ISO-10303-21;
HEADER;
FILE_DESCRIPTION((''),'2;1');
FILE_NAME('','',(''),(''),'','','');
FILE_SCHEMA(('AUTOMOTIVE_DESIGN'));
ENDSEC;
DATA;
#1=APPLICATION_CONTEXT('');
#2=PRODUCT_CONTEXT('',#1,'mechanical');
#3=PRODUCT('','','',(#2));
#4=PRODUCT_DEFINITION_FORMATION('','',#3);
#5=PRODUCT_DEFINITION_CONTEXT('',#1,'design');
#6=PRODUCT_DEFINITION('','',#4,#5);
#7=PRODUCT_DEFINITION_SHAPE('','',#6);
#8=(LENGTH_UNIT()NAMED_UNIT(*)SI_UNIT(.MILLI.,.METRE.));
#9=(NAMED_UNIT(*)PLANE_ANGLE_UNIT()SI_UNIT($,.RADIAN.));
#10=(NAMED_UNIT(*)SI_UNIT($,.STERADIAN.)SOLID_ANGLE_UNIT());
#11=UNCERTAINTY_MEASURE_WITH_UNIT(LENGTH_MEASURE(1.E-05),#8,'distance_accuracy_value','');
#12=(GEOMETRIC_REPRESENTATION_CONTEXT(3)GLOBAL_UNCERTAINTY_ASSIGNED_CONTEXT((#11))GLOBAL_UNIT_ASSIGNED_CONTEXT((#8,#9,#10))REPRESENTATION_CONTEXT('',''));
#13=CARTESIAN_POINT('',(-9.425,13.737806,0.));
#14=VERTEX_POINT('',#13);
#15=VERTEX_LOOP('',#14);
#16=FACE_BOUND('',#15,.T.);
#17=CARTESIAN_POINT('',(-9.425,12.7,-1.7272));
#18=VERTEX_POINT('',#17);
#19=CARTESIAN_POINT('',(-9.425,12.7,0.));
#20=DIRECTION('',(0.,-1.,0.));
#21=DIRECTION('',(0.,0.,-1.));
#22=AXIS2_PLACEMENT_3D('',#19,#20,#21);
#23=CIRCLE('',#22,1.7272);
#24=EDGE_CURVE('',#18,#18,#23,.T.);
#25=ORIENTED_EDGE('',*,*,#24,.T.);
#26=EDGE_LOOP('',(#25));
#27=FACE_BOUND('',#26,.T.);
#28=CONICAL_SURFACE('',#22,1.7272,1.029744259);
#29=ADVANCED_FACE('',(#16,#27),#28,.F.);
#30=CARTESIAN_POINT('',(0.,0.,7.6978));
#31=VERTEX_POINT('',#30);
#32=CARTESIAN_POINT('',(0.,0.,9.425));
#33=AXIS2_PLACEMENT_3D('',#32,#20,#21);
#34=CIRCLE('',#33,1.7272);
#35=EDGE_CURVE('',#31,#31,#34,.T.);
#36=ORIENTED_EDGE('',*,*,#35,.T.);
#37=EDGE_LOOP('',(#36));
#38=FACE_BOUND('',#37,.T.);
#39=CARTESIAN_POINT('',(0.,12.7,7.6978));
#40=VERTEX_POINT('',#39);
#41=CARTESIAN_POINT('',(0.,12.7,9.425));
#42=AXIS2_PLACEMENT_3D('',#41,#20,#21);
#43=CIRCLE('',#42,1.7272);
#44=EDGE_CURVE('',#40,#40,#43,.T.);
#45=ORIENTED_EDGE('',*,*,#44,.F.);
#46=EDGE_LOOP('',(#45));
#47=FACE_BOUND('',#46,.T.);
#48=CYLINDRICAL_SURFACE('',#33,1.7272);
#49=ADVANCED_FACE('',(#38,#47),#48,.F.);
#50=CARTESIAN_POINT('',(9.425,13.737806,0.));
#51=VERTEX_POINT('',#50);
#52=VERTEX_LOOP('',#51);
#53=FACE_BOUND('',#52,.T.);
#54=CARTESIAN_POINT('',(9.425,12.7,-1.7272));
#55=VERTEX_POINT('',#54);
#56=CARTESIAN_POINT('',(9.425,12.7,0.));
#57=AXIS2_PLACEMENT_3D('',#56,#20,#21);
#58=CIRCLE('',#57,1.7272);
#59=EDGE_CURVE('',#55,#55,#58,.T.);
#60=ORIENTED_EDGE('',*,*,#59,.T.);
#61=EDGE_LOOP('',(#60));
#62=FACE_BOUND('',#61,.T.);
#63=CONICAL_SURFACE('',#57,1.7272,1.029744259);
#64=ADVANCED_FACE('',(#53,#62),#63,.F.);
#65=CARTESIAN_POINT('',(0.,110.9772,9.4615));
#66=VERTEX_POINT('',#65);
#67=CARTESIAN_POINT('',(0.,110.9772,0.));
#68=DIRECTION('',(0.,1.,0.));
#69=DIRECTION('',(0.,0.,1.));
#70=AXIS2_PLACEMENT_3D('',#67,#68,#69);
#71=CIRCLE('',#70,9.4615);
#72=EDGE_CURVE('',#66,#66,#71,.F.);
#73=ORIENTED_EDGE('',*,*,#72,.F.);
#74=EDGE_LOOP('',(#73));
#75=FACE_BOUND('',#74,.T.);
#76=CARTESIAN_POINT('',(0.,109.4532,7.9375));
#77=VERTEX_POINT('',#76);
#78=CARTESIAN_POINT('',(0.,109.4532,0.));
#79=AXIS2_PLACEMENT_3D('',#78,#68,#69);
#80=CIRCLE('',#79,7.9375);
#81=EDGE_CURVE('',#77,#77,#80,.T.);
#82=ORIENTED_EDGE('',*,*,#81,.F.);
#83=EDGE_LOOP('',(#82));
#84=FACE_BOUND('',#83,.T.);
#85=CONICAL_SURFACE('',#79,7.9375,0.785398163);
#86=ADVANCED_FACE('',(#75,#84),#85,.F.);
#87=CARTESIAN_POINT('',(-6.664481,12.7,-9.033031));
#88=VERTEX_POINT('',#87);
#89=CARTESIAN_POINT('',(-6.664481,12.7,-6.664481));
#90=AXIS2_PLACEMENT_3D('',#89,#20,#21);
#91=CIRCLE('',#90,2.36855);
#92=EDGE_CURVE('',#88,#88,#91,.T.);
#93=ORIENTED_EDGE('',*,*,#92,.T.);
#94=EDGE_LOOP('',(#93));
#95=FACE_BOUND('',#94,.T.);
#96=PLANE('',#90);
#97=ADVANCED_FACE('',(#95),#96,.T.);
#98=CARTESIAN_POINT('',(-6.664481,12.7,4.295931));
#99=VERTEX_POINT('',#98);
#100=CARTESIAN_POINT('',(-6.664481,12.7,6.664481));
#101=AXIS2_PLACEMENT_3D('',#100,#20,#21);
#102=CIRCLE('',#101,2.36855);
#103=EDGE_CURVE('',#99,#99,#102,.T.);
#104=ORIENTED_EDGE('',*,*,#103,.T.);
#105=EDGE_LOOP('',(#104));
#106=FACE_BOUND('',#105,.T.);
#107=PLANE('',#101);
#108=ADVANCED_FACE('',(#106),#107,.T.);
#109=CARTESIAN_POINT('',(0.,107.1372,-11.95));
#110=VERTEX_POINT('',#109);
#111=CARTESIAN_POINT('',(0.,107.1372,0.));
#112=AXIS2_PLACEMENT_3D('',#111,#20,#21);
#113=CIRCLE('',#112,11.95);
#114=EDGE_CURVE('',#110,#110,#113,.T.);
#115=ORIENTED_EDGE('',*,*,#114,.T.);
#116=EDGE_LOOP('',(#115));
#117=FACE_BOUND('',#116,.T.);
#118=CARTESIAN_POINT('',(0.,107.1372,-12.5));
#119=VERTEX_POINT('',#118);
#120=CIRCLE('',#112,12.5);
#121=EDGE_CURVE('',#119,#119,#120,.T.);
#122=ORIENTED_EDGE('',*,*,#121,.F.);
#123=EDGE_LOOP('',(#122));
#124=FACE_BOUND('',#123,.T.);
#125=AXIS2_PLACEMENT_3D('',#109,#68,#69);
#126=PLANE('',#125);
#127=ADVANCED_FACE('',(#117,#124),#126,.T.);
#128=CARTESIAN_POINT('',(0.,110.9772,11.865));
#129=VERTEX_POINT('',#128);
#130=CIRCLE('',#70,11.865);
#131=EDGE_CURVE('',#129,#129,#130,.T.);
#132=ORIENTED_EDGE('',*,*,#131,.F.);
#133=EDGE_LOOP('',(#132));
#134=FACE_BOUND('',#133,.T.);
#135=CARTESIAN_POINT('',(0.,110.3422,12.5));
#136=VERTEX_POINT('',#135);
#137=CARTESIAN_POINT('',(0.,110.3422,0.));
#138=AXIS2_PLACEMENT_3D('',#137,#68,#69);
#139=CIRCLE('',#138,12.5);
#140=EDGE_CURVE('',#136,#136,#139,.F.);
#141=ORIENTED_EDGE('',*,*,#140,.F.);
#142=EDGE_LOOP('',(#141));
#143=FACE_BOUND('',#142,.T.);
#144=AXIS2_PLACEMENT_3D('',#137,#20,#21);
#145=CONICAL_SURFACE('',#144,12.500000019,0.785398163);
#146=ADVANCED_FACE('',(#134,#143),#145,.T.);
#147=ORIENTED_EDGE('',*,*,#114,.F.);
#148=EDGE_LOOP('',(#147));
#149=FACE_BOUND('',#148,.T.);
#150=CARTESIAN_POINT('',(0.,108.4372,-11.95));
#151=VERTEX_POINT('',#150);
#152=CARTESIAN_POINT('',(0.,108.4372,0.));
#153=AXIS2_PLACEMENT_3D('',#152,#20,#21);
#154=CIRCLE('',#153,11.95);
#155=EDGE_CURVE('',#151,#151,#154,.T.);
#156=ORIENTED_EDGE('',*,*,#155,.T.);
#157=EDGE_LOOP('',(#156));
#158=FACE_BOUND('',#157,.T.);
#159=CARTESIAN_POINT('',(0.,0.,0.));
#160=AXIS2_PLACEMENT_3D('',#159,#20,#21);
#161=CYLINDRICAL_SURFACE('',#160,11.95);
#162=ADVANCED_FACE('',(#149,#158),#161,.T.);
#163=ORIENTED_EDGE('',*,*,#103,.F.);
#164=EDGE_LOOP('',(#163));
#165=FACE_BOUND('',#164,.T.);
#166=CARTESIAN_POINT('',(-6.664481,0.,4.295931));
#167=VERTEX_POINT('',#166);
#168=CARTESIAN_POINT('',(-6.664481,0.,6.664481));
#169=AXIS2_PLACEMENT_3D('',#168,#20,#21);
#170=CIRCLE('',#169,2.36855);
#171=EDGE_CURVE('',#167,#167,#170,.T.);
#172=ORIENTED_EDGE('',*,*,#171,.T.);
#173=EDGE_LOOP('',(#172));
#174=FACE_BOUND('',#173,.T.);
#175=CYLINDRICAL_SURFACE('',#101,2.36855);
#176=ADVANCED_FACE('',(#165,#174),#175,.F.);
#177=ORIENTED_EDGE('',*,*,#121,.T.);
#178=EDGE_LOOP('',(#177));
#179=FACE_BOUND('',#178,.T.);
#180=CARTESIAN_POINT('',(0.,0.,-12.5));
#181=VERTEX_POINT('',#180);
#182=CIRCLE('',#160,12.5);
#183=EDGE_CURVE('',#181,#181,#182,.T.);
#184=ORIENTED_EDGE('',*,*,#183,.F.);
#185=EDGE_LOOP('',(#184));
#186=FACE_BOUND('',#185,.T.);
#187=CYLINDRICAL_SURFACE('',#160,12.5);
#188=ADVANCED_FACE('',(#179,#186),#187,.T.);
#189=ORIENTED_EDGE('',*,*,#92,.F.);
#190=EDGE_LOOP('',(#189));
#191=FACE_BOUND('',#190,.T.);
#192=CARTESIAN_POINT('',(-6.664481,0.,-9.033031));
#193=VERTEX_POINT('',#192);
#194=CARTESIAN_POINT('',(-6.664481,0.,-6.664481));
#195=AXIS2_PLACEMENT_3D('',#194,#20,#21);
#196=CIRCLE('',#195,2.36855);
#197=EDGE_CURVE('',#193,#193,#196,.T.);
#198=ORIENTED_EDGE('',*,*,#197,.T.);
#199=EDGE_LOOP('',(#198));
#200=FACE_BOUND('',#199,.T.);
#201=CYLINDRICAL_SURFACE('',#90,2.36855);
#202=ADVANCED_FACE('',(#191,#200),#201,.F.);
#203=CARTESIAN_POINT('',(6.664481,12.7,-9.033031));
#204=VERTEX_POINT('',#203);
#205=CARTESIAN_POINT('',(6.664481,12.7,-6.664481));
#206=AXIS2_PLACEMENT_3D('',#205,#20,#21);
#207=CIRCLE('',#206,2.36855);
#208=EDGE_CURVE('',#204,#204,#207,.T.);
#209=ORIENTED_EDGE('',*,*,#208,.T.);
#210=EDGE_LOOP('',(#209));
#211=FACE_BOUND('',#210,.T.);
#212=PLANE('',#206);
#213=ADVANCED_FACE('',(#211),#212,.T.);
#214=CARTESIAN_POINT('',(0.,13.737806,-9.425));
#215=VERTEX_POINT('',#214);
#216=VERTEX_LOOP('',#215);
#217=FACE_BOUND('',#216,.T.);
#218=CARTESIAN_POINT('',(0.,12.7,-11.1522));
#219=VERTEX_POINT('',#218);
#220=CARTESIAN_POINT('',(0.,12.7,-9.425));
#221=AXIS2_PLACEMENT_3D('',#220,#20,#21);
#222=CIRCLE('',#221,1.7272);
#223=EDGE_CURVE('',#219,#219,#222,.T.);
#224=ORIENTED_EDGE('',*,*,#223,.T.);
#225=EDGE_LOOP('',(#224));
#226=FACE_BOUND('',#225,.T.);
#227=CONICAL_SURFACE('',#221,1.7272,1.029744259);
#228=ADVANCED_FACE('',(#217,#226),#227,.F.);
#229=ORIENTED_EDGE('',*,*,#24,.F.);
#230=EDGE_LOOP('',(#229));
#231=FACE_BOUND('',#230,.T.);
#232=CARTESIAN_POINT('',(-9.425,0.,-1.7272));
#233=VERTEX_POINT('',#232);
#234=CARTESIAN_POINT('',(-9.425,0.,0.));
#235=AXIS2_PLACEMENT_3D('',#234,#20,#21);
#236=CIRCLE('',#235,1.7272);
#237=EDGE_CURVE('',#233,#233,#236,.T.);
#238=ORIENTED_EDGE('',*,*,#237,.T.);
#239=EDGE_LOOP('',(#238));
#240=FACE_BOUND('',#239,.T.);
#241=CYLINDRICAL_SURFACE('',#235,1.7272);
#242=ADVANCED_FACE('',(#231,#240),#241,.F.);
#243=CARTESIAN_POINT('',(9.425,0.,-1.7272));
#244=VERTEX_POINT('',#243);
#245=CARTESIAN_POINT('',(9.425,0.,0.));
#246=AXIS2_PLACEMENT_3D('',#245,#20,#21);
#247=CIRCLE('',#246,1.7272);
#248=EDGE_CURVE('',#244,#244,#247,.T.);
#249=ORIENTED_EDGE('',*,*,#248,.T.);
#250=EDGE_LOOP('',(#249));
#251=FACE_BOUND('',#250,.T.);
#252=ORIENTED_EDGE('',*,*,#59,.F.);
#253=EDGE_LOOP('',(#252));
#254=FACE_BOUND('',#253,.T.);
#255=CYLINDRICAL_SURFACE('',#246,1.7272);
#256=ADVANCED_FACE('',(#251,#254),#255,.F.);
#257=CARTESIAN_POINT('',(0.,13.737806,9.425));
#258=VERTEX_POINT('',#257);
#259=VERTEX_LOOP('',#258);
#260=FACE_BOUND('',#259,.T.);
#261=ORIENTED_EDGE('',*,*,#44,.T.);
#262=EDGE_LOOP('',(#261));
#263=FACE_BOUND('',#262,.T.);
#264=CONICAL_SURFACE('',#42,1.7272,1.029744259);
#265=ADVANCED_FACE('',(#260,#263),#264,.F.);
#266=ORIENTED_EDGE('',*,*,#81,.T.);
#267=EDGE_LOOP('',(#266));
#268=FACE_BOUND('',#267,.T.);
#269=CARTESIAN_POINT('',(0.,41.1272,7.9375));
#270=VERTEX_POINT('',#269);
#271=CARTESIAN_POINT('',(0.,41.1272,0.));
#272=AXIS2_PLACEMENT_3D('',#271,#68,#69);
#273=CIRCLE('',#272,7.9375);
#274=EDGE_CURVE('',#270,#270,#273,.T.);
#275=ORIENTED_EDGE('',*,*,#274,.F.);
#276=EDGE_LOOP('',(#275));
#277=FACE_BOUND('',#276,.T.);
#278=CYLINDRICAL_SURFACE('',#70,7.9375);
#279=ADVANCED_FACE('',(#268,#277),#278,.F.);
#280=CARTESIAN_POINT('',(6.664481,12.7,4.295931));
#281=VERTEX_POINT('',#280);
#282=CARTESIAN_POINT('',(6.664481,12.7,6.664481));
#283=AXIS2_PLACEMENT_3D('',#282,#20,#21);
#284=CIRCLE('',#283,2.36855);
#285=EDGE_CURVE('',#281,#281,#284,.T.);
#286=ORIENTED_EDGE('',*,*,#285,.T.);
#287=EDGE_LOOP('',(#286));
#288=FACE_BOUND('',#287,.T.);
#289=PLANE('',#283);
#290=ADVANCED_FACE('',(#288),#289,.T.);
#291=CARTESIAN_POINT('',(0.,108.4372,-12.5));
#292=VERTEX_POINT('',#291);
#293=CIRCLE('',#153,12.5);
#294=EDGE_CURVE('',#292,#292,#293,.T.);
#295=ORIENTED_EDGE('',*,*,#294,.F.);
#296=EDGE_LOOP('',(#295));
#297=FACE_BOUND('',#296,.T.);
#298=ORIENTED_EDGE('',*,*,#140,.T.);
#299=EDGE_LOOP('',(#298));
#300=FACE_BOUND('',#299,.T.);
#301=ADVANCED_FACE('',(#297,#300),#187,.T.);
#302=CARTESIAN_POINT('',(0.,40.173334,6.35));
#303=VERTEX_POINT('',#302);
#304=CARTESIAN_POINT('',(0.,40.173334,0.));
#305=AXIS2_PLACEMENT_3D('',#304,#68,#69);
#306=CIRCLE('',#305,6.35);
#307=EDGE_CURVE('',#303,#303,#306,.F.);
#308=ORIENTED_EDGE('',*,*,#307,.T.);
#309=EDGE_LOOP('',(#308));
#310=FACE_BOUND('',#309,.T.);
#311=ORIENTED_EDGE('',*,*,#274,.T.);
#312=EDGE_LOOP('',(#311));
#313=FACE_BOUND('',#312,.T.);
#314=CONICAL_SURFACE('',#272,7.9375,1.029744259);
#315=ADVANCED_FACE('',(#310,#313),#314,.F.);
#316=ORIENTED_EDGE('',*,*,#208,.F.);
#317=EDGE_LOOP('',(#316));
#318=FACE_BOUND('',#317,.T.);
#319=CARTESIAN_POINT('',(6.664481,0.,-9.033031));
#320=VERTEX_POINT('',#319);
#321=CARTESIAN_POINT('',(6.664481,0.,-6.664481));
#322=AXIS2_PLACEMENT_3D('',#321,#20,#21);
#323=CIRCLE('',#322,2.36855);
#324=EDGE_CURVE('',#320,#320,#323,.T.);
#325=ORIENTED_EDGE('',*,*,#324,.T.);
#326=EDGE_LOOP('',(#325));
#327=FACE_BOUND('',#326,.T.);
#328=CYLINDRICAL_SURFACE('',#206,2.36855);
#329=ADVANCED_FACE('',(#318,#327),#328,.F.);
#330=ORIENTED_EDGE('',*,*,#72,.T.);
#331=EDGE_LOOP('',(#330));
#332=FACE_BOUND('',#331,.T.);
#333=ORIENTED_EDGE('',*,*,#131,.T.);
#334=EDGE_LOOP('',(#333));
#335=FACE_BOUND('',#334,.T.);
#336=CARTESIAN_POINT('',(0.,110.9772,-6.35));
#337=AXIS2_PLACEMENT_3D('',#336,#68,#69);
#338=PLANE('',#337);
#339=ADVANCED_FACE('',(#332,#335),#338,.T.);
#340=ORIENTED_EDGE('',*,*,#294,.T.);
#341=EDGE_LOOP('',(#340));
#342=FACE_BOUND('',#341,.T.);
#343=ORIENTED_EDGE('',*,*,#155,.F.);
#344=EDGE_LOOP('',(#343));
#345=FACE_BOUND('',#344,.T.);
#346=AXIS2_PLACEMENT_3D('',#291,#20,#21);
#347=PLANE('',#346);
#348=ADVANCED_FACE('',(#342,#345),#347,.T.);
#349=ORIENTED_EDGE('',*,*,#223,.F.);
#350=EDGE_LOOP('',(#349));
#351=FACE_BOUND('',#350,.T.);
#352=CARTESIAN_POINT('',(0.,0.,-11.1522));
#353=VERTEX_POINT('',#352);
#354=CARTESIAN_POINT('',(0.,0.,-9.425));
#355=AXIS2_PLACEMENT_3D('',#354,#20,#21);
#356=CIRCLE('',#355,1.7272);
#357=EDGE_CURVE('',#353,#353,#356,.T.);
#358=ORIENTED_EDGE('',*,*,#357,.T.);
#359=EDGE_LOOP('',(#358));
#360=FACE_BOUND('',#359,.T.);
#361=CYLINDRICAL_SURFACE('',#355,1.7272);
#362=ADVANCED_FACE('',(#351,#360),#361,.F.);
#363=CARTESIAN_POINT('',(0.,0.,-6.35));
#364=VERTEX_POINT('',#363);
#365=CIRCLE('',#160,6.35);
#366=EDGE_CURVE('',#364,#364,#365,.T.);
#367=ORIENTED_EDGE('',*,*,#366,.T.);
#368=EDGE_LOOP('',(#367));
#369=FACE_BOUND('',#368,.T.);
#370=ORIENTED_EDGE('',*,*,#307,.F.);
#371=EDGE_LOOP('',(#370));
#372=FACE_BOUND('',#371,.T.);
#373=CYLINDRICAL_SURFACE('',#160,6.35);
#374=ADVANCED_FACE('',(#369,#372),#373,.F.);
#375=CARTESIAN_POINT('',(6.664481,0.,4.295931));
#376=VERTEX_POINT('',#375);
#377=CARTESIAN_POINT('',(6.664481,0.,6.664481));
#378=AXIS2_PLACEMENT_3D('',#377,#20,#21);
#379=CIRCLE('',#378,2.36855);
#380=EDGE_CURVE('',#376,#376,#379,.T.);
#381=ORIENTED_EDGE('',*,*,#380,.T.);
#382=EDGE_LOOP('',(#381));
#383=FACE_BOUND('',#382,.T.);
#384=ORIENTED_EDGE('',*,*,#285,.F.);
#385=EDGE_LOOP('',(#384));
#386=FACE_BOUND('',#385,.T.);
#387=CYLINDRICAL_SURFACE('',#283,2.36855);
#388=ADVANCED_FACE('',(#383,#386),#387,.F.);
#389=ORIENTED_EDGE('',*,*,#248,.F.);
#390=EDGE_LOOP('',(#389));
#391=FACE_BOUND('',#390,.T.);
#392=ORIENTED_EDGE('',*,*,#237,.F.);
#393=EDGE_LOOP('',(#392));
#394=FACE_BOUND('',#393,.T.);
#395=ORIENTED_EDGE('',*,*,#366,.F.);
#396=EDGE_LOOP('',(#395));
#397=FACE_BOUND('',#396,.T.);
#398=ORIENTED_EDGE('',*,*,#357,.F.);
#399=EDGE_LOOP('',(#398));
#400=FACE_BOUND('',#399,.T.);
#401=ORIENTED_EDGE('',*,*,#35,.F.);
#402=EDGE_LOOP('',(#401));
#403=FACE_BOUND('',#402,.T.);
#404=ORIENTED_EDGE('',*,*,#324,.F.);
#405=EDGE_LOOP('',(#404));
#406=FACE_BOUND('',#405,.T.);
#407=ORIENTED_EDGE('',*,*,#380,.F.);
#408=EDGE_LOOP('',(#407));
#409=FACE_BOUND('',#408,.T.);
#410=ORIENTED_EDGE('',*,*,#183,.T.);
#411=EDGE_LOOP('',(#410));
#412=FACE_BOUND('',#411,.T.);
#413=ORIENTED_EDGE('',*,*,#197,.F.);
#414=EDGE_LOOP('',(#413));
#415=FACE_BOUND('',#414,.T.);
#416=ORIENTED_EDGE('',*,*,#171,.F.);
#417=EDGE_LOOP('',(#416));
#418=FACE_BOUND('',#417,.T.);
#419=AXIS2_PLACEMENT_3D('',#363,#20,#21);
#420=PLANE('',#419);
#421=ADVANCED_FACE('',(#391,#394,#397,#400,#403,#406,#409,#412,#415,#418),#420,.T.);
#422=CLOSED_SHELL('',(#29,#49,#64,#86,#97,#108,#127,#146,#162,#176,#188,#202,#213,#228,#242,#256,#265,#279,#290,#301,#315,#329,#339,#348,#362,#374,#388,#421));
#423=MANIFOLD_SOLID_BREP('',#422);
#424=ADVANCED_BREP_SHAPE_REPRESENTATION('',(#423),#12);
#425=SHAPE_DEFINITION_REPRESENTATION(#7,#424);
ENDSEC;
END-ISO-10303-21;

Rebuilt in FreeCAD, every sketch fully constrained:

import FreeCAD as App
import Part
import Sketcher

V = App.Vector
Q = App.Units.Quantity


def edges_at(feature, points):
    """Names of the edges that pass closest to the given points."""
    edges = feature.Shape.Edges
    near = lambda p: min(range(len(edges)), key=lambda i: edges[i].distToShape(Part.Vertex(*p))[0])
    return sorted({f"Edge{near(p) + 1}" for p in points})


def add_polygon(sketch, points):
    """Adds a closed chain of lines whose ends are joined by coincident constraints."""
    first, n = sketch.GeometryCount, len(points)
    for a, b in zip(points, points[1:] + points[:1]):
        sketch.addGeometry(Part.LineSegment(App.Vector(*a, 0), App.Vector(*b, 0)), False)
    for i in range(n):
        sketch.addConstraint(Sketcher.Constraint("Coincident", first + i, 2, first + (i + 1) % n, 1))

doc = App.newDocument("Part")
body = doc.addObject("PartDesign::Body", "Body")

sketch1 = body.newObject("Sketcher::SketchObject", "Sketch")
sketch1.AttachmentSupport = (doc.getObject("YZ_Plane"), [""])
sketch1.MapMode = "FlatFace"
add_polygon(sketch1, [(108.4, -11.9), (108.4, -12.5), (111, -12.5), (111, -6.3), (0, -6.3), (0, -12.5), (107.1, -12.5), (107.1, -11.9)])
sketch1.addConstraint(Sketcher.Constraint("Vertical", 0))
sketch1.addConstraint(Sketcher.Constraint("Horizontal", 1))
sketch1.addConstraint(Sketcher.Constraint("Vertical", 2))
sketch1.addConstraint(Sketcher.Constraint("Horizontal", 3))
sketch1.addConstraint(Sketcher.Constraint("Vertical", 4))
sketch1.addConstraint(Sketcher.Constraint("Horizontal", 5))
sketch1.addConstraint(Sketcher.Constraint("Vertical", 6))
sketch1.addConstraint(Sketcher.Constraint("Horizontal", 7))
sketch1.addConstraint(Sketcher.Constraint("PointOnObject", 3, 2, -2))
sketch1.addConstraint(Sketcher.Constraint("Horizontal", 1, 2, 4, 2))
sketch1.addConstraint(Sketcher.Constraint("DistanceX", 1, 1, 1, 2, Q("0.1 in")))
sketch1.addConstraint(Sketcher.Constraint("DistanceX", 5, 1, 5, 2, Q("4.218 in")))
sketch1.addConstraint(Sketcher.Constraint("DistanceY", 2, 2, -1, 1, Q("0.25 in")))
sketch1.addConstraint(Sketcher.Constraint("DistanceX", 3, 2, 3, 1, 110.9772))
sketch1.addConstraint(Sketcher.Constraint("DistanceY", 0, 2, 0, 1, 0.55))
sketch1.addConstraint(Sketcher.Constraint("DistanceY", 2, 1, 2, 2, 6.15))
revolution = body.newObject("PartDesign::Revolution", "Revolution")
revolution.Profile = sketch1
revolution.ReferenceAxis = (sketch1, ["H_Axis"])
revolution.Angle = 360

sketch2 = body.newObject("Sketcher::SketchObject", "Sketch001")
sketch2.AttachmentSupport = (doc.getObject("XZ_Plane"), [""])
sketch2.MapMode = "FlatFace"
sketch2.AttachmentOffset = App.Placement(V(0, 0, -110.9772), App.Rotation())
sketch2.addGeometry(Part.Circle(V(0, 0, 0), V(0, 0, 1), 8), False)
sketch2.addConstraint(Sketcher.Constraint("Coincident", 0, 3, -1, 1))
sketch2.addConstraint(Sketcher.Constraint("Diameter", 0, Q("0.625 in")))
doc.recompute()
hole = body.newObject("PartDesign::Hole", "Hole")
hole.Profile = sketch2
hole.ThreadType = "None"
hole.Diameter = Q("0.625 in")
hole.DepthType = "Dimension"
hole.Depth = Q("2.75 in")
hole.DrillPoint = "Angled"
hole.DrillPointAngle = 118
hole.Reversed = True
doc.recompute()

chamfer = body.newObject("PartDesign::Chamfer", "Chamfer")
chamfer.Base = (hole, edges_at(hole, [(0, 110.977, 12.5)]))
chamfer.Size = Q("0.025 in")

sketch3 = body.newObject("Sketcher::SketchObject", "Sketch002")
sketch3.AttachmentSupport = (doc.getObject("XZ_Plane"), [""])
sketch3.MapMode = "FlatFace"
sketch3.addGeometry(Part.Circle(V(-9.4, 0, 0), V(0, 0, 1), 1.7), False)
sketch3.addGeometry(Part.Circle(V(0, 9.4, 0), V(0, 0, 1), 1.7), False)
sketch3.addGeometry(Part.Circle(V(9.4, 0, 0), V(0, 0, 1), 1.7), False)
sketch3.addGeometry(Part.Circle(V(0, -9.4, 0), V(0, 0, 1), 1.7), False)
sketch3.addConstraint(Sketcher.Constraint("Equal", 0, 1))
sketch3.addConstraint(Sketcher.Constraint("Equal", 1, 2))
sketch3.addConstraint(Sketcher.Constraint("Equal", 2, 3))
sketch3.addConstraint(Sketcher.Constraint("Symmetric", 0, 3, 2, 3, -1, 1))
sketch3.addConstraint(Sketcher.Constraint("Symmetric", 1, 3, 3, 3, -1, 1))
sketch3.addConstraint(Sketcher.Constraint("PointOnObject", 0, 3, -1))
sketch3.addConstraint(Sketcher.Constraint("PointOnObject", 1, 3, -2))
sketch3.addConstraint(Sketcher.Constraint("Diameter", 0, Q("0.136 in")))
sketch3.addConstraint(Sketcher.Constraint("DistanceX", 0, 3, -1, 1, 9.425))
sketch3.addConstraint(Sketcher.Constraint("DistanceY", -1, 1, 1, 3, 9.425))
doc.recompute()
hole2 = body.newObject("PartDesign::Hole", "Hole001")
hole2.Profile = sketch3
hole2.ThreadType = "None"
hole2.Diameter = Q("0.136 in")
hole2.DepthType = "Dimension"
hole2.Depth = Q("0.5 in")
hole2.DrillPoint = "Angled"
hole2.DrillPointAngle = 118

sketch4 = body.newObject("Sketcher::SketchObject", "Sketch003")
sketch4.AttachmentSupport = (doc.getObject("XZ_Plane"), [""])
sketch4.MapMode = "FlatFace"
sketch4.addGeometry(Part.Circle(V(6.7, 6.7, 0), V(0, 0, 1), 2.4), False)
sketch4.addGeometry(Part.Circle(V(6.7, -6.7, 0), V(0, 0, 1), 2.4), False)
sketch4.addGeometry(Part.Circle(V(-6.7, -6.7, 0), V(0, 0, 1), 2.4), False)
sketch4.addGeometry(Part.Circle(V(-6.7, 6.7, 0), V(0, 0, 1), 2.4), False)
sketch4.addConstraint(Sketcher.Constraint("Equal", 0, 1))
sketch4.addConstraint(Sketcher.Constraint("Equal", 1, 2))
sketch4.addConstraint(Sketcher.Constraint("Equal", 2, 3))
sketch4.addConstraint(Sketcher.Constraint("Symmetric", 0, 3, 2, 3, -1, 1))
sketch4.addConstraint(Sketcher.Constraint("Symmetric", 1, 3, 3, 3, -1, 1))
sketch4.addConstraint(Sketcher.Constraint("Symmetric", 1, 3, 2, 3, -2))
sketch4.addConstraint(Sketcher.Constraint("Diameter", 0, Q("0.1865 in")))
sketch4.addConstraint(Sketcher.Constraint("DistanceX", -1, 1, 0, 3, 6.664481))
sketch4.addConstraint(Sketcher.Constraint("DistanceY", -1, 1, 0, 3, 6.664481))
pocket1 = body.newObject("PartDesign::Pocket", "Pocket")
pocket1.Profile = sketch4
pocket1.Length = Q("0.5 in")
doc.recompute()

chamfer2 = body.newObject("PartDesign::Chamfer", "Chamfer001")
chamfer2.Base = (pocket1, edges_at(pocket1, [(7.938, 110.977, 0)]))
chamfer2.Size = Q("0.06 in")

doc.recompute()
